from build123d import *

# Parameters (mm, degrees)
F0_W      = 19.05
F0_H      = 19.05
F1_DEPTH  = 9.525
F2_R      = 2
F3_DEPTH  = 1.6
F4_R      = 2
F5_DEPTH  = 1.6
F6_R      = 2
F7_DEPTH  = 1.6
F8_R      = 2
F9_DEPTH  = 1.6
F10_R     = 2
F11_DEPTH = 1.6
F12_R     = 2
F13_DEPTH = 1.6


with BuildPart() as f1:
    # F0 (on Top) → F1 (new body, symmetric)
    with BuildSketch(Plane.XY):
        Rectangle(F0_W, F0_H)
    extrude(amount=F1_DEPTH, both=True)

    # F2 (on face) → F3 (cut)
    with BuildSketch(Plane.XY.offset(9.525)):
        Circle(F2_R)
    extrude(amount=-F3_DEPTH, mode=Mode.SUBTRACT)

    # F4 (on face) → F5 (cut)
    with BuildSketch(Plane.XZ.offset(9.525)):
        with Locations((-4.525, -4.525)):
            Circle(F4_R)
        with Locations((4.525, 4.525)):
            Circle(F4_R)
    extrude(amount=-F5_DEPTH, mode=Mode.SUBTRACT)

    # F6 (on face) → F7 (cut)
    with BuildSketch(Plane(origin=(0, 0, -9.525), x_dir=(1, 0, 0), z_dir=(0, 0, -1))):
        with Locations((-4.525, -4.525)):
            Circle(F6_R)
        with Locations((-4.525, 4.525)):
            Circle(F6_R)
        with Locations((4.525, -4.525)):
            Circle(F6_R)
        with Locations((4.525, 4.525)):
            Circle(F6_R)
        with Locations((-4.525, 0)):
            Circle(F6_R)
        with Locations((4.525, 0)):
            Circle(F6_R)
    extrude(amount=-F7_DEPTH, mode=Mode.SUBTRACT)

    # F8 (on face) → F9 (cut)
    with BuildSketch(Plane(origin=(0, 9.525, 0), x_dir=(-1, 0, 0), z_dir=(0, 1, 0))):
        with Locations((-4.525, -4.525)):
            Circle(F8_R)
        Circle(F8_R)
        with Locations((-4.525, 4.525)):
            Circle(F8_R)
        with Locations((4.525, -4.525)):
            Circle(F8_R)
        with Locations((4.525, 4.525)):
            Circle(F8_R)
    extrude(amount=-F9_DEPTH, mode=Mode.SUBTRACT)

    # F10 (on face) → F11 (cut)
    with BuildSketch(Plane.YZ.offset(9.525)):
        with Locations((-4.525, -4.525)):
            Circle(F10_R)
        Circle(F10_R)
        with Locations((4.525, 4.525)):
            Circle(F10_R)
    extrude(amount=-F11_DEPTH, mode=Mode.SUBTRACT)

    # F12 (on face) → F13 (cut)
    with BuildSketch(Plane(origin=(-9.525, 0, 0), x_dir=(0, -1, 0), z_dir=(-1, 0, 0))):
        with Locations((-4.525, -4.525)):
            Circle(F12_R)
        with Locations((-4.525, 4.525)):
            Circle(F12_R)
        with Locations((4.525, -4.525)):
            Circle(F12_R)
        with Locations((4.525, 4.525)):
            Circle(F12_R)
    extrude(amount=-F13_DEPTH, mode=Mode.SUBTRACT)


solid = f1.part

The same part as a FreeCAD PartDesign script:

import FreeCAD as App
import Part
import Sketcher
from FreeCAD import Vector
Q = App.Units.Quantity

doc = App.newDocument("Part")
params = doc.addObject("Spreadsheet::Sheet", "Params")
for row, (alias, value) in enumerate([
    ("sketch1_width", "19.05 mm"),
    ("pad1_length", "19.05 mm"),
    ("sketch2_diameter", "4 mm"),
    ("pocket1_length", "1.6 mm"),
    ("sketch3_diameter", "4 mm"),
    ("pocket2_length", "1.6 mm"),
    ("sketch4_diameter", "4 mm"),
    ("pocket3_length", "1.6 mm"),
    ("sketch5_diameter", "4 mm"),
    ("pocket4_length", "1.6 mm"),
    ("sketch6_diameter", "4 mm"),
    ("pocket5_length", "1.6 mm"),
    ("sketch7_diameter", "4 mm"),
    ("pocket6_length", "1.6 mm"),
], start=1):
    params.set(f"A{row}", alias)
    params.set(f"B{row}", "=" + value)
    params.setAlias(f"B{row}", alias)

body = doc.addObject("PartDesign::Body", "Body")

# Sketch on XY plane
sketch1 = doc.addObject("Sketcher::SketchObject", "Sketch")
body.addObject(sketch1)
sketch1.AttachmentSupport = (doc.XY_Plane, [""])
sketch1.MapMode = "FlatFace"
sketch1.addGeometry([
    Part.LineSegment(Vector(-10, 10, 0), Vector(-10, -10, 0)),
    Part.LineSegment(Vector(-10, -10, 0), Vector(10, -10, 0)),
    Part.LineSegment(Vector(10, -10, 0), Vector(10, 10, 0)),
    Part.LineSegment(Vector(10, 10, 0), Vector(-10, 10, 0)),
], False)
sketch1.addConstraint([
    Sketcher.Constraint("Coincident", 0, 2, 1, 1),
    Sketcher.Constraint("Coincident", 1, 2, 2, 1),
    Sketcher.Constraint("Coincident", 2, 2, 3, 1),
    Sketcher.Constraint("Coincident", 3, 2, 0, 1),
    Sketcher.Constraint("Vertical", 0),
    Sketcher.Constraint("Horizontal", 1),
    Sketcher.Constraint("Vertical", 2),
    Sketcher.Constraint("Horizontal", 3),
    Sketcher.Constraint("Symmetric", 0, 2, 2, 2, -1, 1),
    Sketcher.Constraint("Equal", 3, 0),
    Sketcher.Constraint("DistanceX", 1, 1, 1, 2, Q("19.05 mm")),
])
sketch1.setExpression("Constraints[10]", "Params.sketch1_width")
pad1 = doc.addObject("PartDesign::Pad", "Pad")
body.addObject(pad1)
pad1.Profile = sketch1
pad1.setExpression("Length", "Params.pad1_length")
pad1.Midplane = True

# Sketch on XY plane
sketch2 = doc.addObject("Sketcher::SketchObject", "Sketch001")
body.addObject(sketch2)
sketch2.AttachmentSupport = (doc.XY_Plane, [""])
sketch2.MapMode = "FlatFace"
sketch2.AttachmentOffset = App.Placement(Vector(0, 0, 9.525), App.Rotation())
sketch2.addGeometry(Part.Circle(Vector(0, 0, 0), Vector(0, 0, 1), 2), False)
sketch2.addConstraint([
    Sketcher.Constraint("Coincident", 0, 3, -1, 1),
    Sketcher.Constraint("Diameter", 0, Q("4 mm")),
])
sketch2.setExpression("Constraints[1]", "Params.sketch2_diameter")
pocket1 = doc.addObject("PartDesign::Pocket", "Pocket")
body.addObject(pocket1)
pocket1.Profile = sketch2
pocket1.setExpression("Length", "Params.pocket1_length")

# Sketch on XZ plane
sketch3 = doc.addObject("Sketcher::SketchObject", "Sketch002")
body.addObject(sketch3)
sketch3.AttachmentSupport = (doc.XZ_Plane, [""])
sketch3.MapMode = "FlatFace"
sketch3.AttachmentOffset = App.Placement(Vector(0, 0, 9.525), App.Rotation())
sketch3.addGeometry([
    Part.Circle(Vector(-4.5, -4.5, 0), Vector(0, 0, 1), 2),
    Part.Circle(Vector(4.5, 4.5, 0), Vector(0, 0, 1), 2),
], False)
sketch3.addConstraint([
    Sketcher.Constraint("Equal", 0, 1),
    Sketcher.Constraint("Symmetric", 0, 3, 1, 3, -1, 1),
    Sketcher.Constraint("Diameter", 0, Q("4 mm")),
    Sketcher.Constraint("DistanceX", 0, 3, 1, 3, Q("9.05 mm")),
    Sketcher.Constraint("DistanceY", 0, 3, 1, 3, Q("9.05 mm")),
])
sketch3.setExpression("Constraints[2]", "Params.sketch3_diameter")
pocket2 = doc.addObject("PartDesign::Pocket", "Pocket001")
body.addObject(pocket2)
pocket2.Profile = sketch3
pocket2.setExpression("Length", "Params.pocket2_length")

# Sketch on XY plane
sketch4 = doc.addObject("Sketcher::SketchObject", "Sketch003")
body.addObject(sketch4)
sketch4.AttachmentSupport = (doc.XY_Plane, [""])
sketch4.MapMode = "FlatFace"
sketch4.AttachmentOffset = App.Placement(Vector(0, 0, -9.525), App.Rotation())
sketch4.addGeometry([
    Part.Circle(Vector(-4.5, 4.5, 0), Vector(0, 0, 1), 2),  # 0
    Part.Circle(Vector(-4.5, -4.5, 0), Vector(0, 0, 1), 2),  # 1
    Part.Circle(Vector(4.5, 4.5, 0), Vector(0, 0, 1), 2),  # 2
    Part.Circle(Vector(4.5, -4.5, 0), Vector(0, 0, 1), 2),  # 3
    Part.Circle(Vector(-4.5, 0, 0), Vector(0, 0, 1), 2),  # 4
    Part.Circle(Vector(4.5, 0, 0), Vector(0, 0, 1), 2),  # 5
], False)
sketch4.addConstraint([
    Sketcher.Constraint("Equal", 0, 1),
    Sketcher.Constraint("Equal", 1, 2),
    Sketcher.Constraint("Equal", 2, 3),
    Sketcher.Constraint("Equal", 3, 4),
    Sketcher.Constraint("Equal", 4, 5),
    Sketcher.Constraint("Symmetric", 1, 3, 2, 3, -1, 1),
    Sketcher.Constraint("Symmetric", 0, 3, 3, 3, -1, 1),
    Sketcher.Constraint("Symmetric", 4, 3, 5, 3, -1, 1),
    Sketcher.Constraint("Symmetric", 0, 3, 2, 3, -2),
    Sketcher.Constraint("PointOnObject", 4, 3, -1),
    Sketcher.Constraint("Vertical", 1, 3, 4, 3),
    Sketcher.Constraint("Diameter", 0, Q("4 mm")),
    Sketcher.Constraint("DistanceY", 1, 3, 0, 3, Q("9.05 mm")),
    Sketcher.Constraint("DistanceX", 0, 3, 2, 3, Q("9.05 mm")),
])
sketch4.setExpression("Constraints[11]", "Params.sketch4_diameter")
pocket3 = doc.addObject("PartDesign::Pocket", "Pocket002")
body.addObject(pocket3)
pocket3.Profile = sketch4
pocket3.setExpression("Length", "Params.pocket3_length")
pocket3.Reversed = True

# Sketch on XZ plane
sketch5 = doc.addObject("Sketcher::SketchObject", "Sketch004")
body.addObject(sketch5)
sketch5.AttachmentSupport = (doc.XZ_Plane, [""])
sketch5.MapMode = "FlatFace"
sketch5.AttachmentOffset = App.Placement(Vector(0, 0, -9.525), App.Rotation())
sketch5.addGeometry([
    Part.Circle(Vector(4.5, -4.5, 0), Vector(0, 0, 1), 2),  # 0
    Part.Circle(Vector(0, 0, 0), Vector(0, 0, 1), 2),  # 1
    Part.Circle(Vector(4.5, 4.5, 0), Vector(0, 0, 1), 2),  # 2
    Part.Circle(Vector(-4.5, -4.5, 0), Vector(0, 0, 1), 2),  # 3
    Part.Circle(Vector(-4.5, 4.5, 0), Vector(0, 0, 1), 2),  # 4
], False)
sketch5.addConstraint([
    Sketcher.Constraint("Coincident", 1, 3, -1, 1),
    Sketcher.Constraint("Equal", 0, 1),
    Sketcher.Constraint("Equal", 1, 2),
    Sketcher.Constraint("Equal", 2, 3),
    Sketcher.Constraint("Equal", 3, 4),
    Sketcher.Constraint("Symmetric", 2, 3, 3, 3, -1, 1),
    Sketcher.Constraint("Symmetric", 0, 3, 4, 3, -1, 1),
    Sketcher.Constraint("Symmetric", 0, 3, 3, 3, -2),
    Sketcher.Constraint("Diameter", 0, Q("4 mm")),
    Sketcher.Constraint("DistanceY", 0, 3, 2, 3, Q("9.05 mm")),
    Sketcher.Constraint("DistanceX", 3, 3, 0, 3, Q("9.05 mm")),
])
sketch5.setExpression("Constraints[8]", "Params.sketch5_diameter")
pocket4 = doc.addObject("PartDesign::Pocket", "Pocket003")
body.addObject(pocket4)
pocket4.Profile = sketch5
pocket4.setExpression("Length", "Params.pocket4_length")
pocket4.Reversed = True

# Sketch on YZ plane
sketch6 = doc.addObject("Sketcher::SketchObject", "Sketch005")
body.addObject(sketch6)
sketch6.AttachmentSupport = (doc.YZ_Plane, [""])
sketch6.MapMode = "FlatFace"
sketch6.AttachmentOffset = App.Placement(Vector(0, 0, 9.525), App.Rotation())
sketch6.addGeometry([
    Part.Circle(Vector(-4.5, -4.5, 0), Vector(0, 0, 1), 2),
    Part.Circle(Vector(0, 0, 0), Vector(0, 0, 1), 2),
    Part.Circle(Vector(4.5, 4.5, 0), Vector(0, 0, 1), 2),
], False)
sketch6.addConstraint([
    Sketcher.Constraint("Coincident", 1, 3, -1, 1),
    Sketcher.Constraint("Equal", 0, 1),
    Sketcher.Constraint("Equal", 1, 2),
    Sketcher.Constraint("Symmetric", 0, 3, 2, 3, -1, 1),
    Sketcher.Constraint("Diameter", 0, Q("4 mm")),
    Sketcher.Constraint("DistanceX", 0, 3, 2, 3, Q("9.05 mm")),
    Sketcher.Constraint("DistanceY", 0, 3, 2, 3, Q("9.05 mm")),
])
sketch6.setExpression("Constraints[4]", "Params.sketch6_diameter")
pocket5 = doc.addObject("PartDesign::Pocket", "Pocket004")
body.addObject(pocket5)
pocket5.Profile = sketch6
pocket5.setExpression("Length", "Params.pocket5_length")

# Sketch on YZ plane
sketch7 = doc.addObject("Sketcher::SketchObject", "Sketch006")
body.addObject(sketch7)
sketch7.AttachmentSupport = (doc.YZ_Plane, [""])
sketch7.MapMode = "FlatFace"
sketch7.AttachmentOffset = App.Placement(Vector(0, 0, -9.525), App.Rotation())
sketch7.addGeometry([
    Part.Circle(Vector(4.5, -4.5, 0), Vector(0, 0, 1), 2),
    Part.Circle(Vector(4.5, 4.5, 0), Vector(0, 0, 1), 2),
    Part.Circle(Vector(-4.5, -4.5, 0), Vector(0, 0, 1), 2),
    Part.Circle(Vector(-4.5, 4.5, 0), Vector(0, 0, 1), 2),
], False)
sketch7.addConstraint([
    Sketcher.Constraint("Equal", 0, 1),
    Sketcher.Constraint("Equal", 1, 2),
    Sketcher.Constraint("Equal", 2, 3),
    Sketcher.Constraint("Symmetric", 1, 3, 2, 3, -1, 1),
    Sketcher.Constraint("Symmetric", 0, 3, 3, 3, -1, 1),
    Sketcher.Constraint("Symmetric", 0, 3, 2, 3, -2),
    Sketcher.Constraint("Diameter", 0, Q("4 mm")),
    Sketcher.Constraint("DistanceY", 0, 3, 1, 3, Q("9.05 mm")),
    Sketcher.Constraint("DistanceX", 2, 3, 0, 3, Q("9.05 mm")),
])
sketch7.setExpression("Constraints[6]", "Params.sketch7_diameter")
pocket6 = doc.addObject("PartDesign::Pocket", "Pocket005")
body.addObject(pocket6)
pocket6.Profile = sketch7
pocket6.setExpression("Length", "Params.pocket6_length")
pocket6.Reversed = True

doc.recompute()
